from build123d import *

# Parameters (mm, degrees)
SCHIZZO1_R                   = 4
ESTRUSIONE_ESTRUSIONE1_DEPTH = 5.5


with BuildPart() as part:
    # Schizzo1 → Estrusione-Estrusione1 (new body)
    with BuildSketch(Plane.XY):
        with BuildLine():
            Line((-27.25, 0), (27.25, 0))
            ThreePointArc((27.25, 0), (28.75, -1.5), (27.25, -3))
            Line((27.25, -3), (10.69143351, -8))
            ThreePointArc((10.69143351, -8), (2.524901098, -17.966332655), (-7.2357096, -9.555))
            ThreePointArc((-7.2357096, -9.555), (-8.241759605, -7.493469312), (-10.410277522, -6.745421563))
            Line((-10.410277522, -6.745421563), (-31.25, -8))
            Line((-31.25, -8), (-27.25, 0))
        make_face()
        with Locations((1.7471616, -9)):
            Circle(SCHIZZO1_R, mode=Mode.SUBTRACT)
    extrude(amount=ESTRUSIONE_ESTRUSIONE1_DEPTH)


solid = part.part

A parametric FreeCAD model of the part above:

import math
import FreeCAD as App
import Part
import Sketcher

V = App.Vector
Q = App.Units.Quantity

doc = App.newDocument("Part")
body = doc.addObject("PartDesign::Body", "Body")

# Sketch on XY plane
sketch1 = body.newObject("Sketcher::SketchObject", "Sketch")
sketch1.AttachmentSupport = (doc.getObject("XY_Plane"), [""])
sketch1.MapMode = "FlatFace"
sketch1.addGeometry(Part.LineSegment(V(27.2, 0, 0), V(-27.2, 0, 0)), False)
sketch1.addGeometry(Part.LineSegment(V(-27.2, 0, 0), V(-31.2, -8, 0)), False)
sketch1.addGeometry(Part.LineSegment(V(-31.2, -8, 0), V(-10.4, -6.7, 0)), False)
sketch1.addGeometry(Part.ArcOfCircle(Part.Circle(V(-10.2, -9.7, 0), V(0, 0, 1), 3), math.radians(4), math.radians(93)), False)
sketch1.addGeometry(Part.ArcOfCircle(Part.Circle(V(1.7, -9, 0), V(0, 0, 1), 9), math.radians(-176), math.radians(6)), False)
sketch1.addGeometry(Part.LineSegment(V(10.7, -8, 0), V(27.2, -3, 0)), False)
sketch1.addGeometry(Part.ArcOfCircle(Part.Circle(V(27.2, -1.5, 0), V(0, 0, 1), 1.5), math.radians(-90), math.radians(90)), False)
sketch1.addGeometry(Part.Circle(V(1.7, -9, 0), V(0, 0, 1), 4), False)
sketch1.addConstraint(Sketcher.Constraint("Coincident", 0, 2, 1, 1))
sketch1.addConstraint(Sketcher.Constraint("Coincident", 1, 2, 2, 1))
sketch1.addConstraint(Sketcher.Constraint("Tangent", 2, 2, 3, 2))
sketch1.addConstraint(Sketcher.Constraint("Tangent", 3, 1, 4, 1))
sketch1.addConstraint(Sketcher.Constraint("Coincident", 4, 2, 5, 1))
sketch1.addConstraint(Sketcher.Constraint("Coincident", 5, 2, 6, 1))
sketch1.addConstraint(Sketcher.Constraint("Tangent", 6, 2, 0, 1))
sketch1.addConstraint(Sketcher.Constraint("Horizontal", 0))
sketch1.addConstraint(Sketcher.Constraint("Coincident", 7, 3, 4, 3))
sketch1.addConstraint(Sketcher.Constraint("Symmetric", 0, 2, 6, 2, -1, 1))
sketch1.addConstraint(Sketcher.Constraint("Horizontal", 1, 2, 4, 2))
sketch1.addConstraint(Sketcher.Constraint("Vertical", 6, 3, 5, 2))
sketch1.addConstraint(Sketcher.Constraint("Diameter", 7, Q("8 mm")))
sketch1.addConstraint(Sketcher.Constraint("Radius", 3, Q("3 mm")))
sketch1.addConstraint(Sketcher.Constraint("Radius", 4, Q("9 mm")))
sketch1.addConstraint(Sketcher.Constraint("Radius", 6, Q("1.5 mm")))
sketch1.addConstraint(Sketcher.Constraint("DistanceX", 0, 2, 0, 1, Q("54.5 mm")))
sketch1.addConstraint(Sketcher.Constraint("DistanceY", 4, 3, -1, 1, Q("9 mm")))
sketch1.addConstraint(Sketcher.Constraint("DistanceY", 1, 2, -1, 1, Q("8 mm")))
sketch1.addConstraint(Sketcher.Constraint("DistanceX", 1, 2, 0, 2, Q("4 mm")))
sketch1.addConstraint(Sketcher.Constraint("DistanceX", 3, 3, -1, 1, Q("10.23 mm")))
sketch1.addConstraint(Sketcher.Constraint("DistanceY", 3, 3, -1, 1, Q("9.74 mm")))
pad1 = body.newObject("PartDesign::Pad", "Pad")
pad1.Profile = sketch1
pad1.Length = 5.5

doc.recompute()
